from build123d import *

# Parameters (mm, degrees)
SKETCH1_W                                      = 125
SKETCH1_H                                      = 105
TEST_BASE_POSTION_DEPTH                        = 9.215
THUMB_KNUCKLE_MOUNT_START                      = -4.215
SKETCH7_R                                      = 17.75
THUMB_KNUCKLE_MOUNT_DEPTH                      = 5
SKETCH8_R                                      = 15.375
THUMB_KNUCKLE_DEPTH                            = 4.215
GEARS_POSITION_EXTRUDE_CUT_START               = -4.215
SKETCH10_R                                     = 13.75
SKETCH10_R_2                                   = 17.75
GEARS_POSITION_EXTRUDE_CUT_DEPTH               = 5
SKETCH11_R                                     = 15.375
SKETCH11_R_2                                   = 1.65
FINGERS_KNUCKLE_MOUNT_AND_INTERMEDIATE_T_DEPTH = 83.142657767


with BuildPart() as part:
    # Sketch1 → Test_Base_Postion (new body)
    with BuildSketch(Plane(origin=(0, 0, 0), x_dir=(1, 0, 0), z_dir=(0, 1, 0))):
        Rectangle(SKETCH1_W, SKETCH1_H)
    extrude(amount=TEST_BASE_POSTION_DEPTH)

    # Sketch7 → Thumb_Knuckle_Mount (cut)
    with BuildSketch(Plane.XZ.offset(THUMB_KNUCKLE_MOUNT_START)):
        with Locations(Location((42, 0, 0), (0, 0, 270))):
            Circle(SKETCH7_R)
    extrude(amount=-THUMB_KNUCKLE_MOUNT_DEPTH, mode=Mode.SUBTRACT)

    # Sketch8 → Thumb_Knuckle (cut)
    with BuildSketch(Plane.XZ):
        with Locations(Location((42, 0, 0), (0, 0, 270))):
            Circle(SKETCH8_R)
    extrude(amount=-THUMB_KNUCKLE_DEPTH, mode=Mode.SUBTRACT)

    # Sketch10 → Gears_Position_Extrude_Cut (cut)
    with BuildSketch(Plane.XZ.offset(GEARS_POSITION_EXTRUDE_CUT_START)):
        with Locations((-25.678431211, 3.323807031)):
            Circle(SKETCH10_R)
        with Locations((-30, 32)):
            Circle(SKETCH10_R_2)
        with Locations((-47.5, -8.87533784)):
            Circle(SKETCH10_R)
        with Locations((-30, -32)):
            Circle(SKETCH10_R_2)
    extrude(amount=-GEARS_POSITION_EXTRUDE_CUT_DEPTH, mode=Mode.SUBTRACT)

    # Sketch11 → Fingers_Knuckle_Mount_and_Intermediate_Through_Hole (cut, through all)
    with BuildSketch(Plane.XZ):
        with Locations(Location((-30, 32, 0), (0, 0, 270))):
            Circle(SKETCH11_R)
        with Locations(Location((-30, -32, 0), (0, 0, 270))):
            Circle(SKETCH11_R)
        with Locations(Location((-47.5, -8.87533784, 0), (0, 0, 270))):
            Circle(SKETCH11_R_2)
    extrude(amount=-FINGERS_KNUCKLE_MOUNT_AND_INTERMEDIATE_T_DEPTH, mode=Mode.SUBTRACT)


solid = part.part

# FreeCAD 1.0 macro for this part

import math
import FreeCAD as App
import Part
import Sketcher
from FreeCAD import Vector
Q = App.Units.Quantity


def add_polygon(sketch, points):
    """Adds a closed chain of lines whose ends are joined by coincident constraints."""
    first, n = sketch.GeometryCount, len(points)
    for a, b in zip(points, points[1:] + points[:1]):
        sketch.addGeometry(Part.LineSegment(App.Vector(*a, 0), App.Vector(*b, 0)), False)
    for i in range(n):
        sketch.addConstraint(Sketcher.Constraint("Coincident", first + i, 2, first + (i + 1) % n, 1))

doc = App.newDocument("Part")
body = doc.addObject("PartDesign::Body", "Body")

# Sketch on XZ plane
sketch1 = body.newObject("Sketcher::SketchObject", "Sketch")
sketch1.AttachmentSupport = (doc.getObject("XZ_Plane"), [""])
sketch1.MapMode = "FlatFace"
add_polygon(sketch1, [(-62.5, -52.5), (-62.5, 52.5), (62.5, 52.5), (62.5, -52.5)])  # lines 0-3
sketch1.addConstraint([
    Sketcher.Constraint("Vertical", 0),
    Sketcher.Constraint("Horizontal", 1),
    Sketcher.Constraint("Vertical", 2),
    Sketcher.Constraint("Horizontal", 3),
    Sketcher.Constraint("Symmetric", 0, 2, 2, 2, -1, 1),
    Sketcher.Constraint("DistanceX", 1, 1, 1, 2, Q("125 mm")),
    Sketcher.Constraint("DistanceY", 0, 1, 0, 2, Q("105 mm")),
])
pad1 = body.newObject("PartDesign::Pad", "Pad")
pad1.Profile = sketch1
pad1.Length = 9.215
pad1.Reversed = True

# Sketch on XZ plane
sketch2 = body.newObject("Sketcher::SketchObject", "Sketch001")
sketch2.AttachmentSupport = (doc.getObject("XZ_Plane"), [""])
sketch2.MapMode = "FlatFace"
sketch2.AttachmentOffset = App.Placement(Vector(0, 0, -4.215), App.Rotation())
sketch2.addGeometry(Part.Circle(Vector(42, 0, 0), Vector(0, 0, 1), 17.75), False)
sketch2.addConstraint([
    Sketcher.Constraint("PointOnObject", 0, 3, -1),
    Sketcher.Constraint("Diameter", 0, Q("35.5 mm")),
    Sketcher.Constraint("DistanceX", -1, 1, 0, 3, Q("42 mm")),
])
pocket1 = body.newObject("PartDesign::Pocket", "Pocket")
pocket1.Profile = sketch2
pocket1.Length = 5

# Sketch on XZ plane
sketch3 = body.newObject("Sketcher::SketchObject", "Sketch002")
sketch3.AttachmentSupport = (doc.getObject("XZ_Plane"), [""])
sketch3.MapMode = "FlatFace"
sketch3.addGeometry(Part.Circle(Vector(42, 0, 0), Vector(0, 0, 1), 15.375), False)
sketch3.addConstraint([
    Sketcher.Constraint("PointOnObject", 0, 3, -1),
    Sketcher.Constraint("Diameter", 0, Q("30.75 mm")),
    Sketcher.Constraint("DistanceX", -1, 1, 0, 3, Q("42 mm")),
])
pocket2 = body.newObject("PartDesign::Pocket", "Pocket001")
pocket2.Profile = sketch3
pocket2.Length = 4.215

# Sketch on XZ plane
sketch4 = body.newObject("Sketcher::SketchObject", "Sketch003")
sketch4.AttachmentSupport = (doc.getObject("XZ_Plane"), [""])
sketch4.MapMode = "FlatFace"
sketch4.AttachmentOffset = App.Placement(Vector(0, 0, -4.215), App.Rotation())
sketch4.addGeometry([
    Part.ArcOfCircle(Part.Circle(Vector(-30, 32, 0), Vector(0, 0, 1), 17.75), math.radians(-61.362698), math.radians(258.50293)),  # 0
    Part.ArcOfCircle(Part.Circle(Vector(-25.678431, 3.323807, 0), Vector(0, 0, 1), 13.75), math.radians(124.861671), math.radians(184.586989)),  # 1
    Part.ArcOfCircle(Part.Circle(Vector(-47.5, -8.875338, 0), Vector(0, 0, 1), 13.75), math.radians(53.826944), math.radians(280.825708)),  # 2
    Part.ArcOfCircle(Part.Circle(Vector(-30, -32, 0), Vector(0, 0, 1), 17.75), math.radians(147.184449), math.radians(467.050078)),  # 3
    Part.ArcOfCircle(Part.Circle(Vector(-47.5, -8.875338, 0), Vector(0, 0, 1), 13.75), math.radians(-26.591181), math.radians(4.586989)),  # 4
    Part.ArcOfCircle(Part.Circle(Vector(-25.678431, 3.323807, 0), Vector(0, 0, 1), 13.75), math.radians(-126.173056), math.radians(72.278561)),  # 5
], False)
sketch4.addConstraint([
    Sketcher.Constraint("Coincident", 0, 2, 1, 1),
    Sketcher.Constraint("Coincident", 1, 2, 2, 1),
    Sketcher.Constraint("Coincident", 2, 2, 3, 1),
    Sketcher.Constraint("Coincident", 3, 2, 4, 1),
    Sketcher.Constraint("Coincident", 4, 2, 5, 1),
    Sketcher.Constraint("Coincident", 5, 2, 0, 1),
    Sketcher.Constraint("Coincident", 4, 3, 2, 3),
    Sketcher.Constraint("Coincident", 5, 3, 1, 3),
    Sketcher.Constraint("Equal", 1, 2),
    Sketcher.Constraint("Equal", 0, 3),
    Sketcher.Constraint("Equal", 2, 4),
    Sketcher.Constraint("Equal", 4, 5),
    Sketcher.Constraint("Symmetric", 0, 3, 3, 3, -1),
    Sketcher.Constraint("Radius", 0, Q("17.75 mm")),
    Sketcher.Constraint("Radius", 1, Q("13.75 mm")),
    Sketcher.Constraint("DistanceX", 0, 3, -1, 1, Q("30 mm")),
    Sketcher.Constraint("DistanceY", -1, 1, 0, 3, Q("32 mm")),
    Sketcher.Constraint("DistanceX", 2, 3, -1, 1, Q("47.5 mm")),
    Sketcher.Constraint("DistanceX", 1, 2, 0, 2, Q("5.8465 mm")),
    Sketcher.Constraint("DistanceY", 4, 2, 1, 2, Q("9.999899 mm")),
    Sketcher.Constraint("DistanceX", 1, 3, -1, 1, Q("25.678431 mm")),
])
pocket3 = body.newObject("PartDesign::Pocket", "Pocket002")
pocket3.Profile = sketch4
pocket3.Length = 5

# Sketch on XZ plane
sketch5 = body.newObject("Sketcher::SketchObject", "Sketch004")
sketch5.AttachmentSupport = (doc.getObject("XZ_Plane"), [""])
sketch5.MapMode = "FlatFace"
sketch5.addGeometry([
    Part.Circle(Vector(-30, 32, 0), Vector(0, 0, 1), 15.375),
    Part.Circle(Vector(-30, -32, 0), Vector(0, 0, 1), 15.375),
    Part.Circle(Vector(-47.5, -8.875338, 0), Vector(0, 0, 1), 1.65),
], False)
sketch5.addConstraint([
    Sketcher.Constraint("Equal", 0, 1),
    Sketcher.Constraint("Symmetric", 0, 3, 1, 3, -1),
    Sketcher.Constraint("Diameter", 2, Q("3.3 mm")),
    Sketcher.Constraint("Diameter", 0, Q("30.75 mm")),
    Sketcher.Constraint("DistanceX", 0, 3, -1, 1, Q("30 mm")),
    Sketcher.Constraint("DistanceY", -1, 1, 0, 3, Q("32 mm")),
    Sketcher.Constraint("DistanceX", 2, 3, -1, 1, Q("47.5 mm")),
    Sketcher.Constraint("DistanceY", 2, 3, -1, 1, Q("8.875338 mm")),
])
pocket4 = body.newObject("PartDesign::Pocket", "Pocket003")
pocket4.Profile = sketch5
pocket4.Type = "ThroughAll"

doc.recompute()
